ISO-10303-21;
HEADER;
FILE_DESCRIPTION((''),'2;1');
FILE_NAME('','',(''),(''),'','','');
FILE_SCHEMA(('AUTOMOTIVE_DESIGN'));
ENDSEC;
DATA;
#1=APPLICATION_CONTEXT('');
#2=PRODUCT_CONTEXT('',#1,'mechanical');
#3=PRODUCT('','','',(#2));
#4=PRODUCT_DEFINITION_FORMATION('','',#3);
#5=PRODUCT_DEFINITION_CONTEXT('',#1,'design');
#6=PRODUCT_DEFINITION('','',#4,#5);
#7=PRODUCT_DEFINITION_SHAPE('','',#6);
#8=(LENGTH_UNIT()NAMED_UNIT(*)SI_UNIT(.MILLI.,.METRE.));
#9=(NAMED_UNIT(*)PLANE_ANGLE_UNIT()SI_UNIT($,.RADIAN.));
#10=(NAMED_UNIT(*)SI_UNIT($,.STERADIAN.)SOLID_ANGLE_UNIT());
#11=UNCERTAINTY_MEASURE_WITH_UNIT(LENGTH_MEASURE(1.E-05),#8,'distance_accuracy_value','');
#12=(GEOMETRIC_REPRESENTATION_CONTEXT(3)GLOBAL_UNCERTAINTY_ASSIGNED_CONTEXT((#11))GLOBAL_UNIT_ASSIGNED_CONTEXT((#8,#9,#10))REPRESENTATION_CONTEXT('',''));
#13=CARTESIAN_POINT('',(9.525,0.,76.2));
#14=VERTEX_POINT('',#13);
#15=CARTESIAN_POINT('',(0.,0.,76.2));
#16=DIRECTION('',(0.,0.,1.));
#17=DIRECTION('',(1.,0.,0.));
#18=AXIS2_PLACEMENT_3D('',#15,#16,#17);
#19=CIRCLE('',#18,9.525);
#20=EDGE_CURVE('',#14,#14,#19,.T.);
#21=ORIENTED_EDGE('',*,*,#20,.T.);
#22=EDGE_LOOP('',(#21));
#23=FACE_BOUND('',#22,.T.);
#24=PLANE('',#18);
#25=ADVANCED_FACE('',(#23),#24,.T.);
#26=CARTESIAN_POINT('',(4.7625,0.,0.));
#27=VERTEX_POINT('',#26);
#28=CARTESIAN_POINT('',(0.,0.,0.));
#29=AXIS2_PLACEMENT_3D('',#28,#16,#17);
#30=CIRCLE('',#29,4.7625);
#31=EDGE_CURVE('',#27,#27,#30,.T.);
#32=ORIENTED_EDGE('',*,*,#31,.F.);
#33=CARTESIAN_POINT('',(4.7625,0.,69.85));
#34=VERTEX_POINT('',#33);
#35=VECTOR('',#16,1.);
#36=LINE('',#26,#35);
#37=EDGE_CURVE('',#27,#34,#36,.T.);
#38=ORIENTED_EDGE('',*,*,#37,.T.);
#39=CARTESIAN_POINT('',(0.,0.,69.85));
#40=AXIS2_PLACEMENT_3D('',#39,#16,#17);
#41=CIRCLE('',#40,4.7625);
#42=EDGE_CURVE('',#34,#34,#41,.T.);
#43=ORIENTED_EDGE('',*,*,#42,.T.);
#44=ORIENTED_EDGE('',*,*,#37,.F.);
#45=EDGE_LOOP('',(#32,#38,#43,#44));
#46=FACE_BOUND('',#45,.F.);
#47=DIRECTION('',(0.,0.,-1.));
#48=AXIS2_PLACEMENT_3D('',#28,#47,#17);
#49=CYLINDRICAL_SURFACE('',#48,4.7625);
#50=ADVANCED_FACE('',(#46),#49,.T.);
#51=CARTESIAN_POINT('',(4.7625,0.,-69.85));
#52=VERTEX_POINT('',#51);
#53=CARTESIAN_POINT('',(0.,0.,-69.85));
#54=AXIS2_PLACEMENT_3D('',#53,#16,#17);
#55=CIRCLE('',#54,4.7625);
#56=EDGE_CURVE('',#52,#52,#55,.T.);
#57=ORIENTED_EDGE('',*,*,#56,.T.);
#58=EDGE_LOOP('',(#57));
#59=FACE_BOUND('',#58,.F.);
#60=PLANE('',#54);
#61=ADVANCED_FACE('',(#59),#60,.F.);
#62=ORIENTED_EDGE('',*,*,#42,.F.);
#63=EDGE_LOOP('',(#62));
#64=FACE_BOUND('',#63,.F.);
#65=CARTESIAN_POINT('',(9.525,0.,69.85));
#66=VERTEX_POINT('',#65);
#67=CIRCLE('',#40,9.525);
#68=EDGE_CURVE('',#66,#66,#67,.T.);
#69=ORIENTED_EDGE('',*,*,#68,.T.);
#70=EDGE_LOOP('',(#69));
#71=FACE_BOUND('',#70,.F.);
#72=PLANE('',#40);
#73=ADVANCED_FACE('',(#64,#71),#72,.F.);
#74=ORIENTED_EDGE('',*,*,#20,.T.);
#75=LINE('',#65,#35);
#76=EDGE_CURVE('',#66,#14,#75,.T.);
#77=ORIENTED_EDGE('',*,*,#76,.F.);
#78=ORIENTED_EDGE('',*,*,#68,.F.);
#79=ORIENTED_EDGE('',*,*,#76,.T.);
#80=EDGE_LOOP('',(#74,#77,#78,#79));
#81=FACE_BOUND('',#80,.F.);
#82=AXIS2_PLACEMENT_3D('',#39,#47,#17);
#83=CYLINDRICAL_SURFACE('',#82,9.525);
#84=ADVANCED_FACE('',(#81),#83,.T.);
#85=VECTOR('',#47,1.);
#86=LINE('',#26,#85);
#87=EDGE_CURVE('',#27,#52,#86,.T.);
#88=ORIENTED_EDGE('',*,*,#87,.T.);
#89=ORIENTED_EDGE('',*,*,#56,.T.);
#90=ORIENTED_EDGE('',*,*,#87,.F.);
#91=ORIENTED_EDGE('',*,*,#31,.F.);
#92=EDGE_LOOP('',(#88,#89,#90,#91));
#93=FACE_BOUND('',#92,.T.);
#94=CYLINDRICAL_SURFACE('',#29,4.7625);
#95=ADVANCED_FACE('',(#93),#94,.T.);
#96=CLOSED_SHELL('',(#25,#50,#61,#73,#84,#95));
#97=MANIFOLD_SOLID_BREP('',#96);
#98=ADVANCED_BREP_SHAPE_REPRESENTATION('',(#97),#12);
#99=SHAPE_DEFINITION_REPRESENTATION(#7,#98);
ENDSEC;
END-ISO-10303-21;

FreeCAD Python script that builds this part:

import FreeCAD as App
import Part
import Sketcher

V = App.Vector
Q = App.Units.Quantity

doc = App.newDocument("Part")
body = doc.addObject("PartDesign::Body", "Body")

sketch1 = body.newObject("Sketcher::SketchObject", "Sketch")
sketch1.AttachmentSupport = (doc.getObject("XY_Plane"), [""])
sketch1.MapMode = "FlatFace"
sketch1.addGeometry(Part.Circle(V(0, 0, 0), V(0, 0, 1), 4.7625), False)
sketch1.addConstraint([
    Sketcher.Constraint("Coincident", 0, 3, -1, 1),
    Sketcher.Constraint("Diameter", 0, Q("0.375 in")),
])
pad1 = body.newObject("PartDesign::Pad", "Pad")
pad1.Profile = sketch1
pad1.Length = Q("5.5 in")
pad1.Midplane = True

sketch2 = body.newObject("Sketcher::SketchObject", "Sketch001")
sketch2.AttachmentSupport = (doc.getObject("XY_Plane"), [""])
sketch2.MapMode = "FlatFace"
sketch2.AttachmentOffset = App.Placement(V(0, 0, 2.75 * 25.4), App.Rotation())
sketch2.addGeometry(Part.Circle(V(0, 0, 0), V(0, 0, 1), 9.525), False)
sketch2.addConstraint([
    Sketcher.Constraint("Coincident", 0, 3, -1, 1),
    Sketcher.Constraint("Diameter", 0, Q("0.75 in")),
])
pad2 = body.newObject("PartDesign::Pad", "Pad001")
pad2.Profile = sketch2
pad2.Length = Q("0.25 in")

doc.recompute()
